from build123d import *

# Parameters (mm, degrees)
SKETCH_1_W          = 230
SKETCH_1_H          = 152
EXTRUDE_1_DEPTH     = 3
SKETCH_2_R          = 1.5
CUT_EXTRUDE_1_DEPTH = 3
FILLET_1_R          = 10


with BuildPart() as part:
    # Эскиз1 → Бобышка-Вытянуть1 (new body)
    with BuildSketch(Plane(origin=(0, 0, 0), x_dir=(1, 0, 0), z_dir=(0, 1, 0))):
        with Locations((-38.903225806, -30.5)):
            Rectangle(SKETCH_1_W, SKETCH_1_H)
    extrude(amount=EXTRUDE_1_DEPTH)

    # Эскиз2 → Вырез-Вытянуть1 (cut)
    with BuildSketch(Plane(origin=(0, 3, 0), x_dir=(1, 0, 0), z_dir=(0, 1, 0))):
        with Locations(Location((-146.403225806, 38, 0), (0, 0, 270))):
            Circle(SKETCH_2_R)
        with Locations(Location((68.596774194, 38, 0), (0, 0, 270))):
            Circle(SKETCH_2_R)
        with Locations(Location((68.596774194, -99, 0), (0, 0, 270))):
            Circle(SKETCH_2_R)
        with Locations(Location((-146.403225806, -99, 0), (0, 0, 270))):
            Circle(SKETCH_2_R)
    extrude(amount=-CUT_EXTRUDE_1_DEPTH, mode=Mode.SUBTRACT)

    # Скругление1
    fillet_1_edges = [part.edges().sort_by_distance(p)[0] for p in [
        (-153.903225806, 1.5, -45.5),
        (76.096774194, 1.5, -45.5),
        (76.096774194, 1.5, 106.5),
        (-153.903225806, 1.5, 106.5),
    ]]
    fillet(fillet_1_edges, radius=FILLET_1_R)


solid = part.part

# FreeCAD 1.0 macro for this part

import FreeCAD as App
import Part
import Sketcher
from FreeCAD import Vector
Q = App.Units.Quantity


def edges_at(feature, points):
    """Names of the edges that pass closest to the given points."""
    edges = feature.Shape.Edges
    near = lambda p: min(range(len(edges)), key=lambda i: edges[i].distToShape(Part.Vertex(*p))[0])
    return sorted({f"Edge{near(p) + 1}" for p in points})


def add_polygon(sketch, points):
    """Adds a closed chain of lines whose ends are joined by coincident constraints."""
    first, n = sketch.GeometryCount, len(points)
    for a, b in zip(points, points[1:] + points[:1]):
        sketch.addGeometry(Part.LineSegment(App.Vector(*a, 0), App.Vector(*b, 0)), False)
    for i in range(n):
        sketch.addConstraint(Sketcher.Constraint("Coincident", first + i, 2, first + (i + 1) % n, 1))

doc = App.newDocument("Part")
body = doc.addObject("PartDesign::Body", "Body")

# Sketch on XZ plane
sketch1 = doc.addObject("Sketcher::SketchObject", "Sketch")
body.addObject(sketch1)
sketch1.AttachmentSupport = (doc.XZ_Plane, [""])
sketch1.MapMode = "FlatFace"
add_polygon(sketch1, [(-154, -46), (-154, 106), (76, 106), (76, -46)])  # lines 0-3
sketch1.addConstraint([
    Sketcher.Constraint("Vertical", 0),
    Sketcher.Constraint("Horizontal", 1),
    Sketcher.Constraint("Vertical", 2),
    Sketcher.Constraint("Horizontal", 3),
    Sketcher.Constraint("DistanceX", 1, 1, 1, 2, Q("230 mm")),
    Sketcher.Constraint("DistanceY", 0, 1, 0, 2, Q("152 mm")),
    Sketcher.Constraint("DistanceY", -1, 1, 0, 2, Q("106.5 mm")),
    Sketcher.Constraint("DistanceX", 0, 2, -1, 1, Q("153.903226 mm")),
])
pad1 = doc.addObject("PartDesign::Pad", "Pad")
body.addObject(pad1)
pad1.Profile = sketch1
pad1.Length = 3
pad1.Reversed = True

# Sketch on XZ plane
sketch2 = doc.addObject("Sketcher::SketchObject", "Sketch001")
body.addObject(sketch2)
sketch2.AttachmentSupport = (doc.XZ_Plane, [""])
sketch2.MapMode = "FlatFace"
sketch2.AttachmentOffset = App.Placement(Vector(0, 0, -3), App.Rotation())
sketch2.addGeometry([
    Part.Circle(Vector(-146.4, -38, 0), Vector(0, 0, 1), 1.5),
    Part.Circle(Vector(68.6, -38, 0), Vector(0, 0, 1), 1.5),
    Part.Circle(Vector(68.6, 99, 0), Vector(0, 0, 1), 1.5),
    Part.Circle(Vector(-146.4, 99, 0), Vector(0, 0, 1), 1.5),
], False)
sketch2.addConstraint([
    Sketcher.Constraint("Equal", 0, 1),
    Sketcher.Constraint("Equal", 1, 2),
    Sketcher.Constraint("Equal", 2, 3),
    Sketcher.Constraint("Horizontal", 0, 3, 1, 3),
    Sketcher.Constraint("Horizontal", 2, 3, 3, 3),
    Sketcher.Constraint("Vertical", 1, 3, 2, 3),
    Sketcher.Constraint("Vertical", 0, 3, 3, 3),
    Sketcher.Constraint("Diameter", 0, Q("3 mm")),
    Sketcher.Constraint("DistanceY", 0, 3, -1, 1, Q("38 mm")),
    Sketcher.Constraint("DistanceY", -1, 1, 2, 3, Q("99 mm")),
    Sketcher.Constraint("DistanceX", 0, 3, 1, 3, Q("215 mm")),
    Sketcher.Constraint("DistanceX", 0, 3, -1, 1, Q("146.403226 mm")),
])
pocket1 = doc.addObject("PartDesign::Pocket", "Pocket")
body.addObject(pocket1)
pocket1.Profile = sketch2
pocket1.Length = 3
pocket1.Reversed = True
doc.recompute()

fillet = doc.addObject("PartDesign::Fillet", "Fillet")
body.addObject(fillet)
fillet.Base = (pocket1, edges_at(pocket1, [
    (-153.903, 1.5, -45.5),
    (76.097, 1.5, -45.5),
    (76.097, 1.5, 106.5),
    (-153.903, 1.5, 106.5),
]))
fillet.Radius = 10

doc.recompute()
